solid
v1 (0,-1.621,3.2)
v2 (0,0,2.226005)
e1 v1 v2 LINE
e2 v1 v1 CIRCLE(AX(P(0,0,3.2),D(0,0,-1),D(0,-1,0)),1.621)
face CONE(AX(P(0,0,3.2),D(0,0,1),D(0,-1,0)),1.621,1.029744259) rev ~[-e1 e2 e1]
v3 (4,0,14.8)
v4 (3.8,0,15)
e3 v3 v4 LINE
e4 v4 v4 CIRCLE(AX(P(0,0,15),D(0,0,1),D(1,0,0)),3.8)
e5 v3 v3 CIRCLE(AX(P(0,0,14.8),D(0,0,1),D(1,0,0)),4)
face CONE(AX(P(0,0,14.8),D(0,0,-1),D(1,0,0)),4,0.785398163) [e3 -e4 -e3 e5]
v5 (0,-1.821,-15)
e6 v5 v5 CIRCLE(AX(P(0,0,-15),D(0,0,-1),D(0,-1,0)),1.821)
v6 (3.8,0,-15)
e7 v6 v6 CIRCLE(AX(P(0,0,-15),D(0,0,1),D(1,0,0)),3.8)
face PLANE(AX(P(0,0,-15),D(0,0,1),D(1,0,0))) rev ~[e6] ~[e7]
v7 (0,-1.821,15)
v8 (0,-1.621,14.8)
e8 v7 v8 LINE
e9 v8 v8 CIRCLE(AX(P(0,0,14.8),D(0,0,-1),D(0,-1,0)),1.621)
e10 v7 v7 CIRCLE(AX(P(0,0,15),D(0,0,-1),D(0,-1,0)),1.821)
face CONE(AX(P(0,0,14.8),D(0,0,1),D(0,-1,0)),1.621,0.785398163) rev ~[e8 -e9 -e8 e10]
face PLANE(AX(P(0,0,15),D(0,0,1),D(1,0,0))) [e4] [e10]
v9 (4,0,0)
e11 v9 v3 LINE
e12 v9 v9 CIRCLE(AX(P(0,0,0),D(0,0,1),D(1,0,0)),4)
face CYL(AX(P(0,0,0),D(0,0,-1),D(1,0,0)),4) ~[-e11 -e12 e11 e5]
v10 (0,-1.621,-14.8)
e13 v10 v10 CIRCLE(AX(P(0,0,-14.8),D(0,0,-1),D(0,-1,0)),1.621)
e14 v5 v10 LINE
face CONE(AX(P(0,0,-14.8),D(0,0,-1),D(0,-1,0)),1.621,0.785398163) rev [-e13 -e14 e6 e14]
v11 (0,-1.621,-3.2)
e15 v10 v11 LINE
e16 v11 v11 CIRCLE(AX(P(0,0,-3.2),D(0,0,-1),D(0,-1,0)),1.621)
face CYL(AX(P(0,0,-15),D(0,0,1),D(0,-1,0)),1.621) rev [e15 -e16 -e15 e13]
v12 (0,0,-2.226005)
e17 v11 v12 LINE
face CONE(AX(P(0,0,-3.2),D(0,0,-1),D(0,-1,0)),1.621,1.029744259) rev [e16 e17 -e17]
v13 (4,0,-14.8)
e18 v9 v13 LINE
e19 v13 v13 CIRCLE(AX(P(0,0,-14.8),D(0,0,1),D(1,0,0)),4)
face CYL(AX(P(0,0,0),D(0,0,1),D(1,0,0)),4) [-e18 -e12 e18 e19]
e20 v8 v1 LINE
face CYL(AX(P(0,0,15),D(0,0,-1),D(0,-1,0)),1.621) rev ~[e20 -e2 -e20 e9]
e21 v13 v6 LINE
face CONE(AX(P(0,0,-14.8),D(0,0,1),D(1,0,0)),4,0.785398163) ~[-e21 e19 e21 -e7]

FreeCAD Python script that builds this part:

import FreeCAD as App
import Part
import Sketcher
Q = App.Units.Quantity


def edges_at(feature, points):
    """Names of the edges that pass closest to the given points."""
    edges = feature.Shape.Edges
    near = lambda p: min(range(len(edges)), key=lambda i: edges[i].distToShape(Part.Vertex(*p))[0])
    return sorted({f"Edge{near(p) + 1}" for p in points})

doc = App.newDocument("Part")
params = doc.addObject("Spreadsheet::Sheet", "Params")
for row, (alias, value) in enumerate([
    ("sketch1_diameter", "8 mm"),
    ("pad1_length", "30 mm"),
    ("hole_diameter", "3.242 mm"),
    ("hole_depth", "11.8 mm"),
    ("chamfer_size", "0.2 mm"),
], start=1):
    params.set(f"A{row}", alias)
    params.set(f"B{row}", "=" + value)
    params.setAlias(f"B{row}", alias)

body = doc.addObject("PartDesign::Body", "Body")

# Sketch on XY plane
sketch1 = body.newObject("Sketcher::SketchObject", "Sketch")
sketch1.AttachmentSupport = (doc.getObject("XY_Plane"), [""])
sketch1.MapMode = "FlatFace"
sketch1.addGeometry(Part.Circle(App.Vector(0, 0, 0), App.Vector(0, 0, 1), 4), False)
sketch1.addConstraint(Sketcher.Constraint("Coincident", 0, 3, -1, 1))
sketch1.addConstraint(Sketcher.Constraint("Diameter", 0, Q("8 mm")))
sketch1.setExpression("Constraints[1]", "Params.sketch1_diameter")
pad1 = body.newObject("PartDesign::Pad", "Pad")
pad1.Profile = sketch1
pad1.setExpression("Length", "Params.pad1_length")
pad1.Midplane = True

# Sketch on XY plane
sketch2 = body.newObject("Sketcher::SketchObject", "Sketch001")
sketch2.AttachmentSupport = (doc.getObject("XY_Plane"), [""])
sketch2.MapMode = "FlatFace"
sketch2.AttachmentOffset = App.Placement(App.Vector(0, 0, 15), App.Rotation())
sketch2.addGeometry(Part.Circle(App.Vector(0, 0, 0), App.Vector(0, 0, 1), 1.621), False)
sketch2.addConstraint(Sketcher.Constraint("Coincident", 0, 3, -1, 1))
sketch2.addConstraint(Sketcher.Constraint("Diameter", 0, Q("3.242 mm")))
doc.recompute()
hole = body.newObject("PartDesign::Hole", "Hole")
hole.Profile = sketch2
hole.ThreadType = "None"
hole.setExpression("Diameter", "Params.hole_diameter")
hole.DepthType = "Dimension"
hole.setExpression("Depth", "Params.hole_depth")
hole.DrillPoint = "Angled"
hole.DrillPointAngle = 118
doc.recompute()

mirrored = body.newObject("PartDesign::Mirrored", "Mirrored")
mirrored.Originals = [hole]
mirrored.MirrorPlane = (doc.getObject("XY_Plane"), [""])
body.Tip = mirrored
doc.recompute()

chamfer = body.newObject("PartDesign::Chamfer", "Chamfer")
chamfer.Base = (mirrored, edges_at(mirrored, [
    (0, 1.621, 15),
    (-4, 0, 15),
    (-4, 0, -15),
    (0, 1.621, -15),
]))
chamfer.setExpression("Size", "Params.chamfer_size")

doc.recompute()
